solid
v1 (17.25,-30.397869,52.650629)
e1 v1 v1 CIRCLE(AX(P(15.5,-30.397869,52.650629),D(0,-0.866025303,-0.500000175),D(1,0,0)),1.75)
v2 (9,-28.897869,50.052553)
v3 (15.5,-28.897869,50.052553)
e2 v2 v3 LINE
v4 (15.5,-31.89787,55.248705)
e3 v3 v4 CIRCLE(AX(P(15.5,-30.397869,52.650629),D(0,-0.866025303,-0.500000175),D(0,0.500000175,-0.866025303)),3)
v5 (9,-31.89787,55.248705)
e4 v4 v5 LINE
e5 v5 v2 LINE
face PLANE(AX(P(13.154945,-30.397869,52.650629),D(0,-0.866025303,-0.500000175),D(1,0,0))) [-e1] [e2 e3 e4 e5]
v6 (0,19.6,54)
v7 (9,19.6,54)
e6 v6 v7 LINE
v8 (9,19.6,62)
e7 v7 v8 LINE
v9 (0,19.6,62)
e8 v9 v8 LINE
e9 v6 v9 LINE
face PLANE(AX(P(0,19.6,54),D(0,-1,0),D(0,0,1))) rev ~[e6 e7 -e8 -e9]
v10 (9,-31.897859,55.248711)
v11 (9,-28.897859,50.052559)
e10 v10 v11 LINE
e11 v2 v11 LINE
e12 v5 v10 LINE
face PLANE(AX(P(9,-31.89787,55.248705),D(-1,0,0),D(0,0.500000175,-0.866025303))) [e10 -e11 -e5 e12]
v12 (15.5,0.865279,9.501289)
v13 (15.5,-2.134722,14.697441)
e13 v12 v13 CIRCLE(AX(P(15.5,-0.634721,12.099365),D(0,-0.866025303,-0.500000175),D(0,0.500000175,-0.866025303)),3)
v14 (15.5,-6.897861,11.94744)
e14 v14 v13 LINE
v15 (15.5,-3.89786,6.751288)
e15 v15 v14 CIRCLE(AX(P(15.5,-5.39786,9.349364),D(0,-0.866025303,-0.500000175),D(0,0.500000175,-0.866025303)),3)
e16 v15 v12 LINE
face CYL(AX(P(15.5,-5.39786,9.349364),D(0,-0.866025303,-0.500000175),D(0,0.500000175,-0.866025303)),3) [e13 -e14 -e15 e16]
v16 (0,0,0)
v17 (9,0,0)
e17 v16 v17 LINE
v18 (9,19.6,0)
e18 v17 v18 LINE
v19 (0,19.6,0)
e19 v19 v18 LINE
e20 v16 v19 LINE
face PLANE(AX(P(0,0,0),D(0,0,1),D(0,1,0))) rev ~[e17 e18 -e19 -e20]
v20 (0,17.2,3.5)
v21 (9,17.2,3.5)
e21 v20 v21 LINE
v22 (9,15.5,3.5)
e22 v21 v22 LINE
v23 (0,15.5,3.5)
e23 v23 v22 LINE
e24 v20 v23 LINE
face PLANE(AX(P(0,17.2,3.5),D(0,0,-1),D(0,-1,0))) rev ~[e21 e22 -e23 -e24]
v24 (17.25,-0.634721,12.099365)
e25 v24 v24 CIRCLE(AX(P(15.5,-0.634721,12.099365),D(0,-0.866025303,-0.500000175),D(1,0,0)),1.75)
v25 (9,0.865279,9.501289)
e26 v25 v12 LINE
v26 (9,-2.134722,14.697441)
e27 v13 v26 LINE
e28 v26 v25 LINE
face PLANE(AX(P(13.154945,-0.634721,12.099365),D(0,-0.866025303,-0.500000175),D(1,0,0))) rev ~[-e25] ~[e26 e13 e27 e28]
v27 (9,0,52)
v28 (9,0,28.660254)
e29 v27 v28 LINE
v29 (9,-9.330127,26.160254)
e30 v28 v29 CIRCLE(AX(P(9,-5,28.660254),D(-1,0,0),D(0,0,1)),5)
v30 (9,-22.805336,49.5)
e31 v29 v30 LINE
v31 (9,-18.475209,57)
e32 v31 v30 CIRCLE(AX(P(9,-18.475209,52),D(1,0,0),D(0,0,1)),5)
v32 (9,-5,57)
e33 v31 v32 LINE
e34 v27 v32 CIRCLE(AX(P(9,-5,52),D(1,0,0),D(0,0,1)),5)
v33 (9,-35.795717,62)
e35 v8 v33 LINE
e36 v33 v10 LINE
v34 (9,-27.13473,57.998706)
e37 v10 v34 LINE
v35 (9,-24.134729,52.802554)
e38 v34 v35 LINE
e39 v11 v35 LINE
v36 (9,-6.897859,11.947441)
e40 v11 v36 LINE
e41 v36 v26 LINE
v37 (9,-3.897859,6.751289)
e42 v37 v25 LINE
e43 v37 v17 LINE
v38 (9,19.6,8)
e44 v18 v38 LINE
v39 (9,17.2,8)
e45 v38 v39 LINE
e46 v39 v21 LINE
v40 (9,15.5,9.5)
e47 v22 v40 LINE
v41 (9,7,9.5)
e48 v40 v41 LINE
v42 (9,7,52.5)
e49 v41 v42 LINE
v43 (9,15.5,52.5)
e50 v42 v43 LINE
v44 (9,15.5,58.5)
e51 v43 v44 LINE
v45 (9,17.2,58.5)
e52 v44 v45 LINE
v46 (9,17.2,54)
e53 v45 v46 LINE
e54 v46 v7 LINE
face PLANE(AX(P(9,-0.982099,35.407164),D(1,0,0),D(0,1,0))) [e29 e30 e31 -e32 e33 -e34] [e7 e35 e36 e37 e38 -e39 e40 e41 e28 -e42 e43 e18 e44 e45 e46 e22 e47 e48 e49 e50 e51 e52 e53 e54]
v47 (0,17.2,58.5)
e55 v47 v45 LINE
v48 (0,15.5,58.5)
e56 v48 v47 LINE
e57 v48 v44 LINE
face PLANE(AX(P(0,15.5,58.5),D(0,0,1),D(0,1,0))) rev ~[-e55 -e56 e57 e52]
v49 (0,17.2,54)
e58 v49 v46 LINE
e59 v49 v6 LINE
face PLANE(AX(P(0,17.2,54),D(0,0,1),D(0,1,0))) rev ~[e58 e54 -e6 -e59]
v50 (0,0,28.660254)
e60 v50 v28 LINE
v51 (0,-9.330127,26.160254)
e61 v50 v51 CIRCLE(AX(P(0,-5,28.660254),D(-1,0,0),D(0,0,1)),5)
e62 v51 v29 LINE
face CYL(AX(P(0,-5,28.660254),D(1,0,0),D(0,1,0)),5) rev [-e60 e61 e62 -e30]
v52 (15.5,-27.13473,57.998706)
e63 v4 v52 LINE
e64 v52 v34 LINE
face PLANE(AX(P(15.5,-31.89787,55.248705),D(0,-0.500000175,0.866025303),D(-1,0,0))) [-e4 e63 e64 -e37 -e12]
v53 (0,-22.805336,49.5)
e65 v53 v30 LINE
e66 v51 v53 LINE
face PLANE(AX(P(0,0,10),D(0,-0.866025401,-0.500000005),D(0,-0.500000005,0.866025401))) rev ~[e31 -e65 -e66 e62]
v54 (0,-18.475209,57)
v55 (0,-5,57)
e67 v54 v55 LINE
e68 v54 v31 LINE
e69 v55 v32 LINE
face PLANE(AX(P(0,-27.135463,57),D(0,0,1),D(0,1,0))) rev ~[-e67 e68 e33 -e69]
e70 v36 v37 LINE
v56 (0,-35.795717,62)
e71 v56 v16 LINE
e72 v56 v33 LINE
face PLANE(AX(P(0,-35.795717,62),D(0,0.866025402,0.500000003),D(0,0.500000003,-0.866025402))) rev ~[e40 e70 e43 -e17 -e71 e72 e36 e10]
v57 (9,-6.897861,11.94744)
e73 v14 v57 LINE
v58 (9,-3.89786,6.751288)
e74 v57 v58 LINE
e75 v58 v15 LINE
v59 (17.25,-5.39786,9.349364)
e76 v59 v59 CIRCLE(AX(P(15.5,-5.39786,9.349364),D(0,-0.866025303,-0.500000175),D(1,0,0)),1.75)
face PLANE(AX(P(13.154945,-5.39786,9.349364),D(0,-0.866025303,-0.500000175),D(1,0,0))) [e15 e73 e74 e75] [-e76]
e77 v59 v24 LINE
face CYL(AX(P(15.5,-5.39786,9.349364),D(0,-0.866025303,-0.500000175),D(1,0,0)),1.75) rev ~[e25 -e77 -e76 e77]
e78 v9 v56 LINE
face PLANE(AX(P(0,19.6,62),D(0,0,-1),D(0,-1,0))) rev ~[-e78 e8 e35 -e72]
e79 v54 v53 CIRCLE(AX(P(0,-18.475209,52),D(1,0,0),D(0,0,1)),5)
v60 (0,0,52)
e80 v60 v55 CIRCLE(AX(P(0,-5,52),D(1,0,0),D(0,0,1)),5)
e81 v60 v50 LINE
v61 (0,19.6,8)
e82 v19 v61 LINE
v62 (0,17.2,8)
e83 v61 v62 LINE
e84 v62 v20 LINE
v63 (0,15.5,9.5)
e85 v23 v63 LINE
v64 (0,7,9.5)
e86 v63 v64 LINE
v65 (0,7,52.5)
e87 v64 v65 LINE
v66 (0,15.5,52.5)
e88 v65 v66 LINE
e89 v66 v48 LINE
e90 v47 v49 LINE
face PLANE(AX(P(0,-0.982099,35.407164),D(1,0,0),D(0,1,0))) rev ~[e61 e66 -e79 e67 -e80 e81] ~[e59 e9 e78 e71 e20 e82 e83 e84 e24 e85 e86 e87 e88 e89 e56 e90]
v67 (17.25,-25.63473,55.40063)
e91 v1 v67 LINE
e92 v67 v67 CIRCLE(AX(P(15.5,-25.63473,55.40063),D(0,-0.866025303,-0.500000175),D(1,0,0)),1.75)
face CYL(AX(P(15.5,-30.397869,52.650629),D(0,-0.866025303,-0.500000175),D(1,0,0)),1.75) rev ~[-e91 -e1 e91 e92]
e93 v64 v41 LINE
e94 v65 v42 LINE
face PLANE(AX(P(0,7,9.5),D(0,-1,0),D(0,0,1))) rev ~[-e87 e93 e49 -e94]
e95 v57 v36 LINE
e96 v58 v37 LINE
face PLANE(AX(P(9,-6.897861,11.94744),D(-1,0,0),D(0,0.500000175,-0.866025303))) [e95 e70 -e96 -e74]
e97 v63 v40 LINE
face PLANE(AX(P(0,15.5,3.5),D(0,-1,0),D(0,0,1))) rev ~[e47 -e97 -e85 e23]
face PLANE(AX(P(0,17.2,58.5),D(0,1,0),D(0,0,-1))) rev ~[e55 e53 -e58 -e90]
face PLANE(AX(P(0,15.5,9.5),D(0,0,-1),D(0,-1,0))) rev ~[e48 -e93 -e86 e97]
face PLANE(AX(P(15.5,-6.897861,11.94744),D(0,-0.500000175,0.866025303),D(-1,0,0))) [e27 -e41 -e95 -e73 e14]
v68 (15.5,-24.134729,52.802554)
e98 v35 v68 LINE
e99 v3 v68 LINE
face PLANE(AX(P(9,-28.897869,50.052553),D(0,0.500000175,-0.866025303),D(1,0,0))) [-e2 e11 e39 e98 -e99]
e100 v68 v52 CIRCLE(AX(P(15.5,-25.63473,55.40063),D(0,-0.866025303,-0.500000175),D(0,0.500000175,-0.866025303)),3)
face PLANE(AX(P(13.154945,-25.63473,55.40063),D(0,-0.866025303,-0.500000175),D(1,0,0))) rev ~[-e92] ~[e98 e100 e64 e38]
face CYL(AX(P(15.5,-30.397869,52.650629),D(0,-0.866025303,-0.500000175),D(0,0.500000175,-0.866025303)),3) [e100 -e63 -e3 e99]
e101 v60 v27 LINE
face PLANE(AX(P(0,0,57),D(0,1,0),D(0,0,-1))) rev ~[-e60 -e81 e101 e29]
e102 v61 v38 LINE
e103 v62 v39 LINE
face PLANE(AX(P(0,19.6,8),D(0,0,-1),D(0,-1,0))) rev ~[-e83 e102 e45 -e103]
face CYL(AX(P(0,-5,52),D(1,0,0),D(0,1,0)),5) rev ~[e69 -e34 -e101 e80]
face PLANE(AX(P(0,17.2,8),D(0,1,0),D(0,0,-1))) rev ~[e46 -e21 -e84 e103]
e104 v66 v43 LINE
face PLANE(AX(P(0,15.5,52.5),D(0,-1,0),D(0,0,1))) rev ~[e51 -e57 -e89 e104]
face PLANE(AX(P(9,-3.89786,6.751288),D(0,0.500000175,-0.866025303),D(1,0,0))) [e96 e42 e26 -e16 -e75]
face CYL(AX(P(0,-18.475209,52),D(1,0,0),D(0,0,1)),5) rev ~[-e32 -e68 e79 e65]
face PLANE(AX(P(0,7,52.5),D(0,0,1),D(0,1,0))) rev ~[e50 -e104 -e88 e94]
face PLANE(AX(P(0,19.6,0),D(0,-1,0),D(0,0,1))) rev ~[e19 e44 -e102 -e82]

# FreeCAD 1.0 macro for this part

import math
import FreeCAD as App
import Part
import Sketcher
Q = App.Units.Quantity


def edges_at(feature, points):
    """Names of the edges that pass closest to the given points."""
    edges = feature.Shape.Edges
    near = lambda p: min(range(len(edges)), key=lambda i: edges[i].distToShape(Part.Vertex(*p))[0])
    return sorted({f"Edge{near(p) + 1}" for p in points})


def add_polygon(sketch, points):
    """Adds a closed chain of lines whose ends are joined by coincident constraints."""
    first, n = sketch.GeometryCount, len(points)
    for a, b in zip(points, points[1:] + points[:1]):
        sketch.addGeometry(Part.LineSegment(App.Vector(*a, 0), App.Vector(*b, 0)), False)
    for i in range(n):
        sketch.addConstraint(Sketcher.Constraint("Coincident", first + i, 2, first + (i + 1) % n, 1))

doc = App.newDocument("Part")
body = doc.addObject("PartDesign::Body", "Body")

sketch1 = doc.addObject("Sketcher::SketchObject", "Sketch")
body.addObject(sketch1)
sketch1.AttachmentSupport = (doc.YZ_Plane, [""])
sketch1.MapMode = "FlatFace"
add_polygon(sketch1, [(17.2, 58.5), (17.2, 54), (19.6, 54), (19.6, 62), (-35.795717, 62), (0, 0), (19.6, 0), (19.6, 8), (17.2, 8), (17.2, 3.5), (15.5, 3.5), (15.5, 9.5), (7, 9.5), (7, 52.5), (15.5, 52.5), (15.5, 58.5)])
add_polygon(sketch1, [(0, 57), (0, 10), (-27.135463, 57)])
sketch1.addConstraint(Sketcher.Constraint("Vertical", 0))
sketch1.addConstraint(Sketcher.Constraint("Horizontal", 1))
sketch1.addConstraint(Sketcher.Constraint("Vertical", 2))
sketch1.addConstraint(Sketcher.Constraint("Horizontal", 3))
sketch1.addConstraint(Sketcher.Constraint("Horizontal", 5))
sketch1.addConstraint(Sketcher.Constraint("Vertical", 6))
sketch1.addConstraint(Sketcher.Constraint("Horizontal", 7))
sketch1.addConstraint(Sketcher.Constraint("Vertical", 8))
sketch1.addConstraint(Sketcher.Constraint("Horizontal", 9))
sketch1.addConstraint(Sketcher.Constraint("Vertical", 10))
sketch1.addConstraint(Sketcher.Constraint("Horizontal", 11))
sketch1.addConstraint(Sketcher.Constraint("Vertical", 12))
sketch1.addConstraint(Sketcher.Constraint("Horizontal", 13))
sketch1.addConstraint(Sketcher.Constraint("Vertical", 14))
sketch1.addConstraint(Sketcher.Constraint("Horizontal", 15))
sketch1.addConstraint(Sketcher.Constraint("Vertical", 16))
sketch1.addConstraint(Sketcher.Constraint("Horizontal", 18))
sketch1.addConstraint(Sketcher.Constraint("Coincident", 4, 2, -1, 1))
sketch1.addConstraint(Sketcher.Constraint("PointOnObject", 16, 2, -2))
sketch1.addConstraint(Sketcher.Constraint("Parallel", 4, 17))
sketch1.addConstraint(Sketcher.Constraint("Vertical", 2, 2, 5, 2))
sketch1.addConstraint(Sketcher.Constraint("Vertical", 0, 2, 7, 2))
sketch1.addConstraint(Sketcher.Constraint("Vertical", 10, 2, 13, 2))
sketch1.addConstraint(Sketcher.Constraint("Equal", 2, 6))
sketch1.addConstraint(Sketcher.Constraint("Equal", 0, 8))
sketch1.addConstraint(Sketcher.Constraint("Equal", 10, 14))
sketch1.addConstraint(Sketcher.Constraint("DistanceY", 2, 1, 2, 2, 8.0))
sketch1.addConstraint(Sketcher.Constraint("DistanceY", 10, 1, 10, 2, 6.0))
sketch1.addConstraint(Sketcher.Constraint("DistanceY", 12, 1, 12, 2, 43.0))
sketch1.addConstraint(Sketcher.Constraint("DistanceY", 16, 2, 16, 1, 47.0))
sketch1.addConstraint(Sketcher.Constraint("Angle", 4, Q("-60 deg")))
sketch1.addConstraint(Sketcher.Constraint("DistanceX", 1, 1, 1, 2, 2.4))
sketch1.addConstraint(Sketcher.Constraint("DistanceX", 5, 1, 5, 2, 19.6))
sketch1.addConstraint(Sketcher.Constraint("DistanceX", 9, 2, 9, 1, 1.7))
sketch1.addConstraint(Sketcher.Constraint("DistanceX", 11, 2, 11, 1, 8.5))
sketch1.addConstraint(Sketcher.Constraint("DistanceY", 0, 2, 0, 1, 4.5))
sketch1.addConstraint(Sketcher.Constraint("DistanceY", -1, 1, 16, 2, 10.0))
pad1 = doc.addObject("PartDesign::Pad", "Pad")
body.addObject(pad1)
pad1.Profile = sketch1
pad1.Length = 9
doc.recompute()

fillet = doc.addObject("PartDesign::Fillet", "Fillet")
body.addObject(fillet)
fillet.Base = (pad1, edges_at(pad1, [(4.5, 0, 57), (4.5, -27.135, 57), (4.5, 0, 10)]))
fillet.Radius = 5

sketch2 = doc.addObject("Sketcher::SketchObject", "Sketch001")
body.addObject(sketch2)
sketch2.Placement = App.Placement(App.Vector(0, 0, 0), App.Rotation(App.Vector(1, 0, 0), App.Vector(0, -0.500000175, 0.866025303), App.Vector(0, -0.866025303, -0.500000175), "ZXY"))
sketch2.addGeometry(Part.LineSegment(App.Vector(15.5, 63.795717, 0), App.Vector(9, 63.795717, 0)), False)
sketch2.addGeometry(Part.LineSegment(App.Vector(9, 63.795717, 0), App.Vector(9, 57.795717, 0)), False)
sketch2.addGeometry(Part.LineSegment(App.Vector(9, 57.795717, 0), App.Vector(15.5, 57.795717, 0)), False)
sketch2.addGeometry(Part.ArcOfCircle(Part.Circle(App.Vector(15.5, 60.795717, 0), App.Vector(0, 0, 1), 3), math.radians(-90), math.radians(90)), False)
sketch2.addGeometry(Part.Circle(App.Vector(15.5, 60.795717, 0), App.Vector(0, 0, 1), 1.75), False)
sketch2.addGeometry(Part.LineSegment(App.Vector(15.5, 13.795717, 0), App.Vector(9, 13.795717, 0)), False)
sketch2.addGeometry(Part.LineSegment(App.Vector(9, 13.795717, 0), App.Vector(9, 7.795717, 0)), False)
sketch2.addGeometry(Part.LineSegment(App.Vector(9, 7.795717, 0), App.Vector(15.5, 7.795717, 0)), False)
sketch2.addGeometry(Part.ArcOfCircle(Part.Circle(App.Vector(15.5, 10.795717, 0), App.Vector(0, 0, 1), 3), math.radians(-90), math.radians(90)), False)
sketch2.addGeometry(Part.Circle(App.Vector(15.5, 10.795717, 0), App.Vector(0, 0, 1), 1.75), False)
sketch2.addConstraint(Sketcher.Constraint("Coincident", 0, 2, 1, 1))
sketch2.addConstraint(Sketcher.Constraint("Coincident", 1, 2, 2, 1))
sketch2.addConstraint(Sketcher.Constraint("Tangent", 2, 2, 3, 1))
sketch2.addConstraint(Sketcher.Constraint("Tangent", 3, 2, 0, 1))
sketch2.addConstraint(Sketcher.Constraint("Coincident", 5, 2, 6, 1))
sketch2.addConstraint(Sketcher.Constraint("Coincident", 6, 2, 7, 1))
sketch2.addConstraint(Sketcher.Constraint("Tangent", 7, 2, 8, 1))
sketch2.addConstraint(Sketcher.Constraint("Tangent", 8, 2, 5, 1))
sketch2.addConstraint(Sketcher.Constraint("Horizontal", 0))
sketch2.addConstraint(Sketcher.Constraint("Vertical", 1))
sketch2.addConstraint(Sketcher.Constraint("Horizontal", 2))
sketch2.addConstraint(Sketcher.Constraint("Horizontal", 5))
sketch2.addConstraint(Sketcher.Constraint("Vertical", 6))
sketch2.addConstraint(Sketcher.Constraint("Horizontal", 7))
sketch2.addConstraint(Sketcher.Constraint("Coincident", 4, 3, 3, 3))
sketch2.addConstraint(Sketcher.Constraint("Coincident", 9, 3, 8, 3))
sketch2.addConstraint(Sketcher.Constraint("Equal", 3, 8))
sketch2.addConstraint(Sketcher.Constraint("Equal", 4, 9))
sketch2.addConstraint(Sketcher.Constraint("Vertical", 4, 3, 8, 3))
sketch2.addConstraint(Sketcher.Constraint("Vertical", 1, 2, 5, 2))
sketch2.addConstraint(Sketcher.Constraint("Radius", 3, 3.0))
sketch2.addConstraint(Sketcher.Constraint("Diameter", 4, 3.5))
sketch2.addConstraint(Sketcher.Constraint("DistanceX", 0, 2, 0, 1, 6.5))
sketch2.addConstraint(Sketcher.Constraint("DistanceX", -1, 1, 0, 2, 9.0))
sketch2.addConstraint(Sketcher.Constraint("DistanceY", 8, 3, 3, 3, 50.0))
sketch2.addConstraint(Sketcher.Constraint("DistanceY", -1, 1, 3, 3, 60.795717))
pad2 = doc.addObject("PartDesign::Pad", "Pad001")
body.addObject(pad2)
pad2.Profile = sketch2
pad2.Length = 5.5
pad2.Reversed = True

doc.recompute()
